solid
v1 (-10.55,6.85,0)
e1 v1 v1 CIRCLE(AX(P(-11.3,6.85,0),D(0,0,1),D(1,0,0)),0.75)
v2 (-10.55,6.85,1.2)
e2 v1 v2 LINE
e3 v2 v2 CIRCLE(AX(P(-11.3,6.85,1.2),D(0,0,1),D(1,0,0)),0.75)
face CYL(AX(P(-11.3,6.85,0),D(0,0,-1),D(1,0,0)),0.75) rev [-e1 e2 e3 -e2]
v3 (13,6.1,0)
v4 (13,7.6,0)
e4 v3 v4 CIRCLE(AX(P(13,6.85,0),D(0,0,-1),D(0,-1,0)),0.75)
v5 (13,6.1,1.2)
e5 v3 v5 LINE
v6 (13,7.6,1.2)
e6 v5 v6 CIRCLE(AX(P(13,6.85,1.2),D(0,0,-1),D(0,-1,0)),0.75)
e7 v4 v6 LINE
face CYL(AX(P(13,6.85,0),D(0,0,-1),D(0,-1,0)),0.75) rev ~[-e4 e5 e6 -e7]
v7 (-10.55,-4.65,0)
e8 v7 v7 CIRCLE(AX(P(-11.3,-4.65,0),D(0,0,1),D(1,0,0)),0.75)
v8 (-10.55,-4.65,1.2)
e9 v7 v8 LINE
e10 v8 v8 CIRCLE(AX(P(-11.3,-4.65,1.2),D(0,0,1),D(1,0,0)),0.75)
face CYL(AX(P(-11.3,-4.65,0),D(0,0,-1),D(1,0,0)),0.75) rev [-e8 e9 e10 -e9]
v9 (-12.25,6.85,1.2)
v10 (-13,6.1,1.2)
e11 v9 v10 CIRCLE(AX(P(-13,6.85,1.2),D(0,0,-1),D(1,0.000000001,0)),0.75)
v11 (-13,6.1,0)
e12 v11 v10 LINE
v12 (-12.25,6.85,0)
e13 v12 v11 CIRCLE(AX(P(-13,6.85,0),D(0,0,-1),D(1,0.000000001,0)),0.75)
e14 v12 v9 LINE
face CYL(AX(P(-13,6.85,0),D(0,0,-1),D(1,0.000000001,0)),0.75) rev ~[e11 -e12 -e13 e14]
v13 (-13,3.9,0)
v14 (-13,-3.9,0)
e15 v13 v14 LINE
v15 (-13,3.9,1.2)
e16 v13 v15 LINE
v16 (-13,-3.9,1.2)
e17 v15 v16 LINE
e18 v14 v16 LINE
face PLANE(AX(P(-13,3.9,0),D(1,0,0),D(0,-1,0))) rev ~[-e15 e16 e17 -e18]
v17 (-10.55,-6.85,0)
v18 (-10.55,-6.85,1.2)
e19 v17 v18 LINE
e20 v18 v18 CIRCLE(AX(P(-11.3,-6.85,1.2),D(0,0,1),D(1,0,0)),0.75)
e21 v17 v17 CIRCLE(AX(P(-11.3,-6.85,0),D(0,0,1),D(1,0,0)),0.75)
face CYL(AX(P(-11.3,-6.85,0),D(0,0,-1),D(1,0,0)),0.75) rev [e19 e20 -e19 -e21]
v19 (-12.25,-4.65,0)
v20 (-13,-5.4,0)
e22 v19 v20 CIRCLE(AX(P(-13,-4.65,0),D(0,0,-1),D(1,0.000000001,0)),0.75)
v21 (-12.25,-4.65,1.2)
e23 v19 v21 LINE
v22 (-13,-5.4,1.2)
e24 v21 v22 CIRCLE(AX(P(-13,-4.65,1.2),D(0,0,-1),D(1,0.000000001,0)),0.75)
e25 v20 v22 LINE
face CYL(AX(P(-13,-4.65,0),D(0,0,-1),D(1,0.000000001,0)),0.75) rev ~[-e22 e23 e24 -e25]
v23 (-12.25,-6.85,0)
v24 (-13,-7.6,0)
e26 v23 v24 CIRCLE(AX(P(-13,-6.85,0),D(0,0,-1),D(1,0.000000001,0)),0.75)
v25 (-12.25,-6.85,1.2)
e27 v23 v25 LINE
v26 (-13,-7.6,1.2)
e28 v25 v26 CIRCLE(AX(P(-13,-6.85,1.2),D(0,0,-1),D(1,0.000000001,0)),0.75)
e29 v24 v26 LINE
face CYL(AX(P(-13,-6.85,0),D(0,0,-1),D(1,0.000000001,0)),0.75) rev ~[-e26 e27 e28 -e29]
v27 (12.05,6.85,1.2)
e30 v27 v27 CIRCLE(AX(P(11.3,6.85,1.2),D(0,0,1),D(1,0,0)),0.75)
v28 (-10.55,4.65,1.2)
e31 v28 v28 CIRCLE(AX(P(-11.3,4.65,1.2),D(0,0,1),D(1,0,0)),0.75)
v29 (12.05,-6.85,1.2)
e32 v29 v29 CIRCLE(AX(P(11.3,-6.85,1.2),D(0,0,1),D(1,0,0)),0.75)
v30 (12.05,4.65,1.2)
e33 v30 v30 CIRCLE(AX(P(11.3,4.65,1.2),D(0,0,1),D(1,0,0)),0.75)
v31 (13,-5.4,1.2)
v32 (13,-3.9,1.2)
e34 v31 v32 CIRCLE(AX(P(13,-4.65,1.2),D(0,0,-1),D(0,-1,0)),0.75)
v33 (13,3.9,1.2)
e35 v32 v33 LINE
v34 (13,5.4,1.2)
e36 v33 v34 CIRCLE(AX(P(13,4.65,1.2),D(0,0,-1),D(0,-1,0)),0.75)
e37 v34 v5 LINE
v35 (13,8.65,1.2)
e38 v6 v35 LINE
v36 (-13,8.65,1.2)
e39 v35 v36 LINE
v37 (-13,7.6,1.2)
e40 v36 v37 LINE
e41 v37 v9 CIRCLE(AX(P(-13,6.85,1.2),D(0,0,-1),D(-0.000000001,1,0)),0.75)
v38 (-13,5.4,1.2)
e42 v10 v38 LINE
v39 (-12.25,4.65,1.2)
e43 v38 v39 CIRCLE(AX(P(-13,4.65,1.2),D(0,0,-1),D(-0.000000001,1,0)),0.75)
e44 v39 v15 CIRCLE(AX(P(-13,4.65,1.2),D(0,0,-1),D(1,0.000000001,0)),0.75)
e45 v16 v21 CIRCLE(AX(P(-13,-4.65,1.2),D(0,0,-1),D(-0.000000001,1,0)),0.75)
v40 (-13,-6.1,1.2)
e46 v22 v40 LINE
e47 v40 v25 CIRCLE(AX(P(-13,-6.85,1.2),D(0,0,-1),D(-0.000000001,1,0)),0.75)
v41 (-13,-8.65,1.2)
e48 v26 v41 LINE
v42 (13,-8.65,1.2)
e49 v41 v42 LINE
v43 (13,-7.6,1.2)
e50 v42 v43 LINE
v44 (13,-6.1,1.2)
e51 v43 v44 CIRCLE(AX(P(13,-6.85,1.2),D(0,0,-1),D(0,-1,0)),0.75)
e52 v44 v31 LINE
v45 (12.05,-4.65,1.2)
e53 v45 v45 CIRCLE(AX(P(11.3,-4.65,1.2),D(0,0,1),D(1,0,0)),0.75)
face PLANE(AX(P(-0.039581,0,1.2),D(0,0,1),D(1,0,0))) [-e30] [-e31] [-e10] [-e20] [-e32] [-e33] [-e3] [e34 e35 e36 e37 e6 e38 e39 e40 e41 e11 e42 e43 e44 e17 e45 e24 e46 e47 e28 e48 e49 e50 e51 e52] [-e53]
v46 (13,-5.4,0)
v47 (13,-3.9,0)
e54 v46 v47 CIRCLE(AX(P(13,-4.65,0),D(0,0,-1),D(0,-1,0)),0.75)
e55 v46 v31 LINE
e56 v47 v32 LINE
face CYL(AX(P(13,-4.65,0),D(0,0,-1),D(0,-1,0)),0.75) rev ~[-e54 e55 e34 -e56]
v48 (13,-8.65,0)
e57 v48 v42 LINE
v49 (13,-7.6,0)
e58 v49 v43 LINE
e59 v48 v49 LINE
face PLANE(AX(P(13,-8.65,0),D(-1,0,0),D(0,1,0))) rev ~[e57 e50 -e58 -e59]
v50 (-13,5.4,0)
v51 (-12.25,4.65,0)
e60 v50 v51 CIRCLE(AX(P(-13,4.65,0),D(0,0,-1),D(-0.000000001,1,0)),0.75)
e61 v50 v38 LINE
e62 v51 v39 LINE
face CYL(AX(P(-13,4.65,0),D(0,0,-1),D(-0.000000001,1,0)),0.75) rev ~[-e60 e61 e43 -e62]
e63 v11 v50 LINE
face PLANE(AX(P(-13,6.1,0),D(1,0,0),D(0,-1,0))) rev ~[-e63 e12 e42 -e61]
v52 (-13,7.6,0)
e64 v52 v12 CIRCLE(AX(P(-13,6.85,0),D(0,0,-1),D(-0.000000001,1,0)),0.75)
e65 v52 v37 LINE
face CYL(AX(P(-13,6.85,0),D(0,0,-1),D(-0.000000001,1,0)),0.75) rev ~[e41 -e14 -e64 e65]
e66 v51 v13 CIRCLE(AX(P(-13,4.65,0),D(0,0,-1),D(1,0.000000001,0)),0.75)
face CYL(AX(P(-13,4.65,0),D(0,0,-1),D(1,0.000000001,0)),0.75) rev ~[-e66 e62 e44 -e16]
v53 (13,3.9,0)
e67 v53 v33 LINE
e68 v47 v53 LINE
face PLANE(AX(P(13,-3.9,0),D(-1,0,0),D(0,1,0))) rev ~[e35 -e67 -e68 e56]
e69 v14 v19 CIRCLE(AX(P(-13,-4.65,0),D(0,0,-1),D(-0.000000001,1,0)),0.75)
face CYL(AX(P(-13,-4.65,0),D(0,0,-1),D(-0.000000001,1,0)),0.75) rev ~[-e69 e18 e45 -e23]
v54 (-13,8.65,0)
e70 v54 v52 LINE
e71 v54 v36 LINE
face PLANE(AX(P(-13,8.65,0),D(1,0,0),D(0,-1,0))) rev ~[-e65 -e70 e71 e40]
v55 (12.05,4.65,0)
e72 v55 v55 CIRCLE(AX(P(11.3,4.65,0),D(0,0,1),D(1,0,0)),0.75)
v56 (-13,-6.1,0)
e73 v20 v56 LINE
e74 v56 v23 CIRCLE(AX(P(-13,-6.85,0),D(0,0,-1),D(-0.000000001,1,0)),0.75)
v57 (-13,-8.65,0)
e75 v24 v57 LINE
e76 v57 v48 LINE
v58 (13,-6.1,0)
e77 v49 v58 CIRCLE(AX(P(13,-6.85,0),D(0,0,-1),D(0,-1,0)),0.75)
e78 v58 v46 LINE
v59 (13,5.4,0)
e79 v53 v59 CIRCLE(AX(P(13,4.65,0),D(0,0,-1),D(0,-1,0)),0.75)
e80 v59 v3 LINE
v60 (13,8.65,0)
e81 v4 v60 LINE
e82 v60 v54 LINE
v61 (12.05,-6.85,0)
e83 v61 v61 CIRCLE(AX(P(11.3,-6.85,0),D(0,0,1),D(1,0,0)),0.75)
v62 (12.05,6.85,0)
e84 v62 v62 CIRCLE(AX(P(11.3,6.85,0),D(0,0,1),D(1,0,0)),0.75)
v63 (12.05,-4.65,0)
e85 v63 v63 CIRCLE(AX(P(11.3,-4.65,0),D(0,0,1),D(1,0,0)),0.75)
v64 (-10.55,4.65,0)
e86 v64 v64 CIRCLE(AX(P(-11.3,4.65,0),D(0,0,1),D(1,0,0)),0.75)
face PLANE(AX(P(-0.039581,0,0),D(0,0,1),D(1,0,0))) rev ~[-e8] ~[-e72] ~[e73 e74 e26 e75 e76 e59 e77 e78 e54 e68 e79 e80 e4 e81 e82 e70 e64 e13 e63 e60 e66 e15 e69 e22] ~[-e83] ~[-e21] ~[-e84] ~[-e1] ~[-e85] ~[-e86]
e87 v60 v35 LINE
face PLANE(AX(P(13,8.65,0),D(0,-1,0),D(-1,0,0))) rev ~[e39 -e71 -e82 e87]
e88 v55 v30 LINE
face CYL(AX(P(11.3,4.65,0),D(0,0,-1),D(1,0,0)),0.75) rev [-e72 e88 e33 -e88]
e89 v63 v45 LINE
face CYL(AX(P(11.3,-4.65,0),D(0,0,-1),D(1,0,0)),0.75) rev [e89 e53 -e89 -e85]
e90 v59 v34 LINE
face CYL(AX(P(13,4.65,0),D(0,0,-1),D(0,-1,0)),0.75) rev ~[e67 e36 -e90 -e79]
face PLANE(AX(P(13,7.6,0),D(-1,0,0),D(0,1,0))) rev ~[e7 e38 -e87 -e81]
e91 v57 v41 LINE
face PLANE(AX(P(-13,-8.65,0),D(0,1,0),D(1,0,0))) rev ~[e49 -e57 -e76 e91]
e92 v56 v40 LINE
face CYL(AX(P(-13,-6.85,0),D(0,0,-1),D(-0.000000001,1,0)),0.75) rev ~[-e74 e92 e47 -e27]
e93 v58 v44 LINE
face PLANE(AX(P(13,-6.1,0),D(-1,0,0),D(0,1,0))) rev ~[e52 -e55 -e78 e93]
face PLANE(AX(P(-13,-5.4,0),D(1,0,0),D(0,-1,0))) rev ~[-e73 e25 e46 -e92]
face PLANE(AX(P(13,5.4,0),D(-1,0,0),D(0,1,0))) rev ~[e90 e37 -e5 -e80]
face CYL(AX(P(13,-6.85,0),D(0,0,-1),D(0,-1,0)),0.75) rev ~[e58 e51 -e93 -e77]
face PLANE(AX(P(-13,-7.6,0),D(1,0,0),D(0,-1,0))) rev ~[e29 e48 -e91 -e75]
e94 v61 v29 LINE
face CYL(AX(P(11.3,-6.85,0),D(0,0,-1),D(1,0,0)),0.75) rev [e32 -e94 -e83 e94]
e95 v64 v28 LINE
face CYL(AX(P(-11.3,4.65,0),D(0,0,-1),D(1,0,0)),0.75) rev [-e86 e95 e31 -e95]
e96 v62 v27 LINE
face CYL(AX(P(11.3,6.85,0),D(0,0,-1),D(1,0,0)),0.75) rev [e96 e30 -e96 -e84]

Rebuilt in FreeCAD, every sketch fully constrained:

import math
import FreeCAD as App
import Part
import Sketcher

V = App.Vector
Q = App.Units.Quantity

doc = App.newDocument("Part")
body = doc.addObject("PartDesign::Body", "Body")

# Sketch on XY plane
sketch1 = doc.addObject("Sketcher::SketchObject", "Sketch")
body.addObject(sketch1)
sketch1.AttachmentSupport = (doc.XY_Plane, [""])
sketch1.MapMode = "FlatFace"
sketch1.addGeometry([
    Part.LineSegment(V(13, 8.7, 0), V(-13, 8.7, 0)),  # 0
    Part.LineSegment(V(-13, 8.7, 0), V(-13, 7.6, 0)),  # 1
    Part.ArcOfCircle(Part.Circle(V(-13, 6.8, 0), V(0, 0, 1), 0.8), math.radians(0), math.radians(90)),  # 2
    Part.ArcOfCircle(Part.Circle(V(-13, 6.8, 0), V(0, 0, 1), 0.8), math.radians(-90), math.radians(0)),  # 3
    Part.LineSegment(V(-13, 6.1, 0), V(-13, 5.4, 0)),  # 4
    Part.ArcOfCircle(Part.Circle(V(-13, 4.7, 0), V(0, 0, 1), 0.8), math.radians(0), math.radians(90)),  # 5
    Part.ArcOfCircle(Part.Circle(V(-13, 4.7, 0), V(0, 0, 1), 0.8), math.radians(-90), math.radians(0)),  # 6
    Part.LineSegment(V(-13, 3.9, 0), V(-13, -3.9, 0)),  # 7
    Part.ArcOfCircle(Part.Circle(V(-13, -4.7, 0), V(0, 0, 1), 0.8), math.radians(0), math.radians(90)),  # 8
    Part.ArcOfCircle(Part.Circle(V(-13, -4.7, 0), V(0, 0, 1), 0.8), math.radians(-90), math.radians(0)),  # 9
    Part.LineSegment(V(-13, -5.4, 0), V(-13, -6.1, 0)),  # 10
    Part.ArcOfCircle(Part.Circle(V(-13, -6.8, 0), V(0, 0, 1), 0.8), math.radians(0), math.radians(90)),  # 11
    Part.ArcOfCircle(Part.Circle(V(-13, -6.8, 0), V(0, 0, 1), 0.8), math.radians(-90), math.radians(0)),  # 12
    Part.LineSegment(V(-13, -7.6, 0), V(-13, -8.7, 0)),  # 13
    Part.LineSegment(V(-13, -8.7, 0), V(13, -8.7, 0)),  # 14
    Part.LineSegment(V(13, -8.7, 0), V(13, -7.6, 0)),  # 15
    Part.ArcOfCircle(Part.Circle(V(13, -6.8, 0), V(0, 0, 1), 0.8), math.radians(90), math.radians(270)),  # 16
    Part.LineSegment(V(13, -6.1, 0), V(13, -5.4, 0)),  # 17
    Part.ArcOfCircle(Part.Circle(V(13, -4.7, 0), V(0, 0, 1), 0.8), math.radians(90), math.radians(270)),  # 18
    Part.LineSegment(V(13, -3.9, 0), V(13, 3.9, 0)),  # 19
    Part.ArcOfCircle(Part.Circle(V(13, 4.7, 0), V(0, 0, 1), 0.8), math.radians(90), math.radians(270)),  # 20
    Part.LineSegment(V(13, 5.4, 0), V(13, 6.1, 0)),  # 21
    Part.ArcOfCircle(Part.Circle(V(13, 6.8, 0), V(0, 0, 1), 0.8), math.radians(90), math.radians(270)),  # 22
    Part.LineSegment(V(13, 7.6, 0), V(13, 8.7, 0)),  # 23
    Part.Circle(V(-11.3, -6.8, 0), V(0, 0, 1), 0.8),  # 24
    Part.Circle(V(-11.3, -4.7, 0), V(0, 0, 1), 0.8),  # 25
    Part.Circle(V(11.3, -6.8, 0), V(0, 0, 1), 0.8),  # 26
    Part.Circle(V(11.3, -4.7, 0), V(0, 0, 1), 0.8),  # 27
    Part.Circle(V(-11.3, 4.7, 0), V(0, 0, 1), 0.8),  # 28
    Part.Circle(V(-11.3, 6.8, 0), V(0, 0, 1), 0.8),  # 29
    Part.Circle(V(11.3, 4.7, 0), V(0, 0, 1), 0.8),  # 30
    Part.Circle(V(11.3, 6.8, 0), V(0, 0, 1), 0.8),  # 31
], False)
sketch1.addConstraint([
    Sketcher.Constraint("Coincident", 0, 2, 1, 1),
    Sketcher.Constraint("Coincident", 1, 2, 2, 2),
    Sketcher.Constraint("Tangent", 2, 1, 3, 2),
    Sketcher.Constraint("Coincident", 3, 1, 4, 1),
    Sketcher.Constraint("Coincident", 4, 2, 5, 2),
    Sketcher.Constraint("Tangent", 5, 1, 6, 2),
    Sketcher.Constraint("Coincident", 6, 1, 7, 1),
    Sketcher.Constraint("Coincident", 7, 2, 8, 2),
    Sketcher.Constraint("Tangent", 8, 1, 9, 2),
    Sketcher.Constraint("Coincident", 9, 1, 10, 1),
    Sketcher.Constraint("Coincident", 10, 2, 11, 2),
    Sketcher.Constraint("Tangent", 11, 1, 12, 2),
    Sketcher.Constraint("Coincident", 12, 1, 13, 1),
    Sketcher.Constraint("Coincident", 13, 2, 14, 1),
    Sketcher.Constraint("Coincident", 14, 2, 15, 1),
    Sketcher.Constraint("Coincident", 15, 2, 16, 2),
    Sketcher.Constraint("Coincident", 16, 1, 17, 1),
    Sketcher.Constraint("Coincident", 17, 2, 18, 2),
    Sketcher.Constraint("Coincident", 18, 1, 19, 1),
    Sketcher.Constraint("Coincident", 19, 2, 20, 2),
    Sketcher.Constraint("Coincident", 20, 1, 21, 1),
    Sketcher.Constraint("Coincident", 21, 2, 22, 2),
    Sketcher.Constraint("Coincident", 22, 1, 23, 1),
    Sketcher.Constraint("Coincident", 23, 2, 0, 1),
    Sketcher.Constraint("Horizontal", 0),
    Sketcher.Constraint("Vertical", 1),
    Sketcher.Constraint("Vertical", 4),
    Sketcher.Constraint("Vertical", 7),
    Sketcher.Constraint("Vertical", 10),
    Sketcher.Constraint("Vertical", 13),
    Sketcher.Constraint("Horizontal", 14),
    Sketcher.Constraint("Vertical", 15),
    Sketcher.Constraint("Vertical", 17),
    Sketcher.Constraint("Vertical", 19),
    Sketcher.Constraint("Vertical", 21),
    Sketcher.Constraint("Vertical", 23),
    Sketcher.Constraint("Equal", 2, 3),
    Sketcher.Constraint("Equal", 3, 5),
    Sketcher.Constraint("Equal", 5, 6),
    Sketcher.Constraint("Equal", 6, 8),
    Sketcher.Constraint("Equal", 8, 9),
    Sketcher.Constraint("Equal", 9, 11),
    Sketcher.Constraint("Equal", 11, 12),
    Sketcher.Constraint("Equal", 12, 16),
    Sketcher.Constraint("Equal", 16, 18),
    Sketcher.Constraint("Equal", 18, 20),
    Sketcher.Constraint("Equal", 20, 22),
    Sketcher.Constraint("Equal", 22, 24),
    Sketcher.Constraint("Equal", 24, 25),
    Sketcher.Constraint("Equal", 25, 26),
    Sketcher.Constraint("Equal", 26, 27),
    Sketcher.Constraint("Equal", 27, 28),
    Sketcher.Constraint("Equal", 28, 29),
    Sketcher.Constraint("Equal", 29, 30),
    Sketcher.Constraint("Equal", 30, 31),
    Sketcher.Constraint("Symmetric", 2, 3, 16, 3, -1, 1),
    Sketcher.Constraint("Symmetric", 5, 3, 18, 3, -1, 1),
    Sketcher.Constraint("Symmetric", 8, 3, 20, 3, -1, 1),
    Sketcher.Constraint("Symmetric", 11, 3, 22, 3, -1, 1),
    Sketcher.Constraint("Symmetric", 27, 3, 28, 3, -1, 1),
    Sketcher.Constraint("Symmetric", 26, 3, 29, 3, -1, 1),
    Sketcher.Constraint("Symmetric", 25, 3, 30, 3, -1, 1),
    Sketcher.Constraint("Symmetric", 24, 3, 31, 3, -1, 1),
    Sketcher.Constraint("Symmetric", 0, 2, 14, 2, -1, 1),
    Sketcher.Constraint("Symmetric", 11, 3, 16, 3, -2),
    Sketcher.Constraint("Symmetric", 8, 3, 18, 3, -2),
    Sketcher.Constraint("Symmetric", 24, 3, 26, 3, -2),
    Sketcher.Constraint("Symmetric", 25, 3, 27, 3, -2),
    Sketcher.Constraint("Horizontal", 16, 3, 24, 3),
    Sketcher.Constraint("Horizontal", 18, 3, 25, 3),
    Sketcher.Constraint("Horizontal", 31, 3, 2, 1),
    Sketcher.Constraint("Horizontal", 30, 3, 5, 1),
    Sketcher.Constraint("Horizontal", 27, 3, 8, 1),
    Sketcher.Constraint("Horizontal", 26, 3, 11, 1),
    Sketcher.Constraint("Vertical", 3, 3, 5, 3),
    Sketcher.Constraint("Vertical", 24, 3, 25, 3),
    Sketcher.Constraint("Vertical", 12, 3, 0, 2),
    Sketcher.Constraint("Vertical", 1, 2, 3, 1),
    Sketcher.Constraint("Vertical", 4, 2, 6, 1),
    Sketcher.Constraint("Vertical", 7, 2, 9, 1),
    Sketcher.Constraint("Vertical", 10, 2, 12, 1),
    Sketcher.Constraint("Vertical", 15, 2, 16, 1),
    Sketcher.Constraint("Vertical", 17, 2, 18, 1),
    Sketcher.Constraint("Vertical", 19, 2, 20, 1),
    Sketcher.Constraint("Vertical", 21, 2, 22, 1),
    Sketcher.Constraint("Diameter", 24, Q("1.5 mm")),
    Sketcher.Constraint("DistanceX", 0, 2, 0, 1, Q("26 mm")),
    Sketcher.Constraint("DistanceY", 4, 2, 4, 1, Q("0.7 mm")),
    Sketcher.Constraint("DistanceY", 7, 2, 7, 1, Q("7.8 mm")),
    Sketcher.Constraint("DistanceY", 5, 3, 0, 2, Q("4 mm")),
    Sketcher.Constraint("DistanceX", 24, 3, -1, 1, Q("11.3 mm")),
])
pad1 = doc.addObject("PartDesign::Pad", "Pad")
body.addObject(pad1)
pad1.Profile = sketch1
pad1.Length = 1.2

doc.recompute()
